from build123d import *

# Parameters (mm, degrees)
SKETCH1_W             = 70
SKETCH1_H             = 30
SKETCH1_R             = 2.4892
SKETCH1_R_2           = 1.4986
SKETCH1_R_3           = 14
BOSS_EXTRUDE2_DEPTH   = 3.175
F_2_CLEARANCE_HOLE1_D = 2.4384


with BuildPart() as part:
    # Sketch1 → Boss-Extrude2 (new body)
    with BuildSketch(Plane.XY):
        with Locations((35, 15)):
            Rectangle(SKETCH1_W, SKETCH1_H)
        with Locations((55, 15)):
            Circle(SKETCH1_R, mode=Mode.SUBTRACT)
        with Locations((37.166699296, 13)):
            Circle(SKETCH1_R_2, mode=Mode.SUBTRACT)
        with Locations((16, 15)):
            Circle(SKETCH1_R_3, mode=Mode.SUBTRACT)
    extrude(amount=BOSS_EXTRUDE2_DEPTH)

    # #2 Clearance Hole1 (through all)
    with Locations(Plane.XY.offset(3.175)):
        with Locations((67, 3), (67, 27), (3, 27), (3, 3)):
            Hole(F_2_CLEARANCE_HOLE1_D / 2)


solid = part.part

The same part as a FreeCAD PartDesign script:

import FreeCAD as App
import Part
import Sketcher
from FreeCAD import Vector
Q = App.Units.Quantity


def add_polygon(sketch, points):
    """Adds a closed chain of lines whose ends are joined by coincident constraints."""
    first, n = sketch.GeometryCount, len(points)
    for a, b in zip(points, points[1:] + points[:1]):
        sketch.addGeometry(Part.LineSegment(App.Vector(*a, 0), App.Vector(*b, 0)), False)
    for i in range(n):
        sketch.addConstraint(Sketcher.Constraint("Coincident", first + i, 2, first + (i + 1) % n, 1))

doc = App.newDocument("Part")
body = doc.addObject("PartDesign::Body", "Body")

# Sketch on XY plane
sketch1 = body.newObject("Sketcher::SketchObject", "Sketch")
sketch1.AttachmentSupport = (doc.getObject("XY_Plane"), [""])
sketch1.MapMode = "FlatFace"
add_polygon(sketch1, [(0, 30), (0, 0), (70, 0), (70, 30)])  # lines 0-3
sketch1.addGeometry(Part.Circle(Vector(37.2, 13, 0), Vector(0, 0, 1), 1.5), False)  # 4
sketch1.addGeometry(Part.Circle(Vector(16, 15, 0), Vector(0, 0, 1), 14), False)  # 5
sketch1.addGeometry(Part.Circle(Vector(55, 15, 0), Vector(0, 0, 1), 2.5), False)  # 6
sketch1.addConstraint(Sketcher.Constraint("Vertical", 0))
sketch1.addConstraint(Sketcher.Constraint("Horizontal", 1))
sketch1.addConstraint(Sketcher.Constraint("Vertical", 2))
sketch1.addConstraint(Sketcher.Constraint("Horizontal", 3))
sketch1.addConstraint(Sketcher.Constraint("Coincident", 0, 2, -1, 1))
sketch1.addConstraint(Sketcher.Constraint("Horizontal", 5, 3, 6, 3))
sketch1.addConstraint(Sketcher.Constraint("Diameter", 4, Q("0.118 in")))
sketch1.addConstraint(Sketcher.Constraint("Diameter", 6, Q("0.196 in")))
sketch1.addConstraint(Sketcher.Constraint("Diameter", 5, 28.0))
sketch1.addConstraint(Sketcher.Constraint("DistanceX", 1, 1, 1, 2, 70.0))
sketch1.addConstraint(Sketcher.Constraint("DistanceY", 0, 2, 0, 1, 30.0))
sketch1.addConstraint(Sketcher.Constraint("DistanceX", -1, 1, 4, 3, 37.166699))
sketch1.addConstraint(Sketcher.Constraint("DistanceY", -1, 1, 4, 3, 13.0))
sketch1.addConstraint(Sketcher.Constraint("DistanceX", -1, 1, 5, 3, 16.0))
sketch1.addConstraint(Sketcher.Constraint("DistanceY", -1, 1, 5, 3, 15.0))
sketch1.addConstraint(Sketcher.Constraint("DistanceX", -1, 1, 6, 3, 55.0))
pad1 = body.newObject("PartDesign::Pad", "Pad")
pad1.Profile = sketch1
pad1.Length = Q("0.125 in")

# Sketch on XY plane
sketch2 = body.newObject("Sketcher::SketchObject", "Sketch001")
sketch2.AttachmentSupport = (doc.getObject("XY_Plane"), [""])
sketch2.MapMode = "FlatFace"
sketch2.AttachmentOffset = App.Placement(Vector(0, 0, 0.125 * 25.4), App.Rotation())
sketch2.addGeometry(Part.Circle(Vector(67, 3, 0), Vector(0, 0, 1), 1.2), False)
sketch2.addGeometry(Part.Circle(Vector(67, 27, 0), Vector(0, 0, 1), 1.2), False)
sketch2.addGeometry(Part.Circle(Vector(3, 27, 0), Vector(0, 0, 1), 1.2), False)
sketch2.addGeometry(Part.Circle(Vector(3, 3, 0), Vector(0, 0, 1), 1.2), False)
sketch2.addConstraint(Sketcher.Constraint("Equal", 0, 1))
sketch2.addConstraint(Sketcher.Constraint("Equal", 1, 2))
sketch2.addConstraint(Sketcher.Constraint("Equal", 2, 3))
sketch2.addConstraint(Sketcher.Constraint("Horizontal", 1, 3, 2, 3))
sketch2.addConstraint(Sketcher.Constraint("Horizontal", 0, 3, 3, 3))
sketch2.addConstraint(Sketcher.Constraint("Vertical", 0, 3, 1, 3))
sketch2.addConstraint(Sketcher.Constraint("Vertical", 2, 3, 3, 3))
sketch2.addConstraint(Sketcher.Constraint("Diameter", 0, Q("0.096 in")))
sketch2.addConstraint(Sketcher.Constraint("DistanceX", -1, 1, 0, 3, 67.0))
sketch2.addConstraint(Sketcher.Constraint("DistanceY", -1, 1, 0, 3, 3.0))
sketch2.addConstraint(Sketcher.Constraint("DistanceY", -1, 1, 1, 3, 27.0))
sketch2.addConstraint(Sketcher.Constraint("DistanceX", -1, 1, 2, 3, 3.0))
doc.recompute()
hole = body.newObject("PartDesign::Hole", "Hole")
hole.Profile = sketch2
hole.ThreadType = "None"
hole.Diameter = Q("0.096 in")
hole.DepthType = "ThroughAll"

doc.recompute()
